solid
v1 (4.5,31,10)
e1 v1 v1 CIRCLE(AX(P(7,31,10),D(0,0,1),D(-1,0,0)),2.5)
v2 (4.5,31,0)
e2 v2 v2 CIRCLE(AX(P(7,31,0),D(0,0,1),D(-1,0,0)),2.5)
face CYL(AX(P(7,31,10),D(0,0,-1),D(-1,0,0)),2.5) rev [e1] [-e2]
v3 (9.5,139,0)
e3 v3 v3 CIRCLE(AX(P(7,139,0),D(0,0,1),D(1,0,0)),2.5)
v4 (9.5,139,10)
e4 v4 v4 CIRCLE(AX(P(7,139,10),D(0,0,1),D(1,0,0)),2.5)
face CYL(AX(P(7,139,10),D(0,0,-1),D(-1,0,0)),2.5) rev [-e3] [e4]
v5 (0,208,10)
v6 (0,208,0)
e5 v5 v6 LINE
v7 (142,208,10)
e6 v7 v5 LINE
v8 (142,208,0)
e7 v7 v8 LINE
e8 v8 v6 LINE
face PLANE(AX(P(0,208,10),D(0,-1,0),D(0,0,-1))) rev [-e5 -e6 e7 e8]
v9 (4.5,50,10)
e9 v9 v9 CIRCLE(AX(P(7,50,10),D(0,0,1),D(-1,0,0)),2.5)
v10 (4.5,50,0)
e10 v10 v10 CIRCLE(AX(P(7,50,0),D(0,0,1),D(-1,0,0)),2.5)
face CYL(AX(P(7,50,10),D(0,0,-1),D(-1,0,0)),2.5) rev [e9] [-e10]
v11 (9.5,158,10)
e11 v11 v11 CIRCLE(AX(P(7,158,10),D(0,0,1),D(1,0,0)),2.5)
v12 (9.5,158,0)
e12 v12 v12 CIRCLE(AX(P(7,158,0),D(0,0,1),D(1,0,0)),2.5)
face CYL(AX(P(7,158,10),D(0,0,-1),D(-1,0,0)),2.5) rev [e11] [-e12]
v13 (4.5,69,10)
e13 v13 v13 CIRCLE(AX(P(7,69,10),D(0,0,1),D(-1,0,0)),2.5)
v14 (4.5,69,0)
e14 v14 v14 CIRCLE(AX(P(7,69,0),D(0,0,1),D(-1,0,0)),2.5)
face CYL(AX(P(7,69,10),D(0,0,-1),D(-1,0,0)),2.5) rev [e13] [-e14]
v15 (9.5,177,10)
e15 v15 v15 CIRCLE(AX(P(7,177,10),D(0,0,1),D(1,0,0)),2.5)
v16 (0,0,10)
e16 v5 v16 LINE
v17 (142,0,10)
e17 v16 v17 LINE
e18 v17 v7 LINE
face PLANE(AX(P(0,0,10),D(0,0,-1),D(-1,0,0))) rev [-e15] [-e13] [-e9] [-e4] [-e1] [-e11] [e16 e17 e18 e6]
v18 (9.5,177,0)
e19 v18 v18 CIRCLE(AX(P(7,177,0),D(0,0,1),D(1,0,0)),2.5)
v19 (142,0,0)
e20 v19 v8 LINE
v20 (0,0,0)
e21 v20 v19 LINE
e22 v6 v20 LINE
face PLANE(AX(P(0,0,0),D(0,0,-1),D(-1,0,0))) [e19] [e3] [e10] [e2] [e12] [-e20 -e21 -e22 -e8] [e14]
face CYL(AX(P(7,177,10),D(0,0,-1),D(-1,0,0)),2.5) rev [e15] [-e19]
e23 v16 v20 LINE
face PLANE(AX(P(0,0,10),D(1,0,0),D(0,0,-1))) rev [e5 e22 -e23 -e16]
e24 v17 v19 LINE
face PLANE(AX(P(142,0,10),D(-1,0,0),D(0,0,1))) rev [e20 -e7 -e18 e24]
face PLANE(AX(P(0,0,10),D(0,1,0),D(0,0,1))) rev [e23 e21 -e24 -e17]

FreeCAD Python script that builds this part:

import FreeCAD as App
import Part
import Sketcher

V = App.Vector
Q = App.Units.Quantity


def add_polygon(sketch, points):
    """Adds a closed chain of lines whose ends are joined by coincident constraints."""
    first, n = sketch.GeometryCount, len(points)
    for a, b in zip(points, points[1:] + points[:1]):
        sketch.addGeometry(Part.LineSegment(App.Vector(*a, 0), App.Vector(*b, 0)), False)
    for i in range(n):
        sketch.addConstraint(Sketcher.Constraint("Coincident", first + i, 2, first + (i + 1) % n, 1))

doc = App.newDocument("Part")
params = doc.addObject("Spreadsheet::Sheet", "Params")
for row, (alias, value) in enumerate([
    ("sketch1_diameter", "5 mm"),
    ("sketch1_width", "142 mm"),
    ("sketch1_height", "208 mm"),
    ("pad1_length", "10 mm"),
], start=1):
    params.set(f"A{row}", alias)
    params.set(f"B{row}", "=" + value)
    params.setAlias(f"B{row}", alias)

body = doc.addObject("PartDesign::Body", "Body")

# Sketch on XY plane
sketch1 = doc.addObject("Sketcher::SketchObject", "Sketch")
body.addObject(sketch1)
sketch1.AttachmentSupport = (doc.XY_Plane, [""])
sketch1.MapMode = "FlatFace"
add_polygon(sketch1, [(0, 208), (0, 0), (142, 0), (142, 208)])  # lines 0-3
sketch1.addGeometry(Part.Circle(V(7, 31, 0), V(0, 0, 1), 2.5), False)  # 4
sketch1.addGeometry(Part.Circle(V(7, 50, 0), V(0, 0, 1), 2.5), False)  # 5
sketch1.addGeometry(Part.Circle(V(7, 69, 0), V(0, 0, 1), 2.5), False)  # 6
sketch1.addGeometry(Part.Circle(V(7, 139, 0), V(0, 0, 1), 2.5), False)  # 7
sketch1.addGeometry(Part.Circle(V(7, 158, 0), V(0, 0, 1), 2.5), False)  # 8
sketch1.addGeometry(Part.Circle(V(7, 177, 0), V(0, 0, 1), 2.5), False)  # 9
sketch1.addConstraint([
    Sketcher.Constraint("Vertical", 0),
    Sketcher.Constraint("Horizontal", 1),
    Sketcher.Constraint("Vertical", 2),
    Sketcher.Constraint("Horizontal", 3),
    Sketcher.Constraint("Coincident", 0, 2, -1, 1),
    Sketcher.Constraint("Equal", 4, 5),
    Sketcher.Constraint("Equal", 5, 6),
    Sketcher.Constraint("Equal", 6, 7),
    Sketcher.Constraint("Equal", 7, 8),
    Sketcher.Constraint("Equal", 8, 9),
    Sketcher.Constraint("Vertical", 4, 3, 5, 3),
    Sketcher.Constraint("Vertical", 5, 3, 6, 3),
    Sketcher.Constraint("Vertical", 6, 3, 7, 3),
    Sketcher.Constraint("Vertical", 7, 3, 8, 3),
    Sketcher.Constraint("Vertical", 8, 3, 9, 3),
    Sketcher.Constraint("Diameter", 4, Q("5 mm")),
    Sketcher.Constraint("DistanceX", 1, 1, 1, 2, Q("142 mm")),
    Sketcher.Constraint("DistanceY", 0, 2, 0, 1, Q("208 mm")),
    Sketcher.Constraint("DistanceX", -1, 1, 4, 3, Q("7 mm")),
    Sketcher.Constraint("DistanceY", -1, 1, 4, 3, Q("31 mm")),
    Sketcher.Constraint("DistanceY", -1, 1, 5, 3, Q("50 mm")),
    Sketcher.Constraint("DistanceY", -1, 1, 6, 3, Q("69 mm")),
    Sketcher.Constraint("DistanceY", -1, 1, 7, 3, Q("139 mm")),
    Sketcher.Constraint("DistanceY", -1, 1, 8, 3, Q("158 mm")),
    Sketcher.Constraint("DistanceY", -1, 1, 9, 3, Q("177 mm")),
])
sketch1.setExpression("Constraints[19]", "Params.sketch1_diameter")
sketch1.setExpression("Constraints[20]", "Params.sketch1_width")
sketch1.setExpression("Constraints[21]", "Params.sketch1_height")
pad1 = doc.addObject("PartDesign::Pad", "Pad")
body.addObject(pad1)
pad1.Profile = sketch1
pad1.setExpression("Length", "Params.pad1_length")

doc.recompute()
